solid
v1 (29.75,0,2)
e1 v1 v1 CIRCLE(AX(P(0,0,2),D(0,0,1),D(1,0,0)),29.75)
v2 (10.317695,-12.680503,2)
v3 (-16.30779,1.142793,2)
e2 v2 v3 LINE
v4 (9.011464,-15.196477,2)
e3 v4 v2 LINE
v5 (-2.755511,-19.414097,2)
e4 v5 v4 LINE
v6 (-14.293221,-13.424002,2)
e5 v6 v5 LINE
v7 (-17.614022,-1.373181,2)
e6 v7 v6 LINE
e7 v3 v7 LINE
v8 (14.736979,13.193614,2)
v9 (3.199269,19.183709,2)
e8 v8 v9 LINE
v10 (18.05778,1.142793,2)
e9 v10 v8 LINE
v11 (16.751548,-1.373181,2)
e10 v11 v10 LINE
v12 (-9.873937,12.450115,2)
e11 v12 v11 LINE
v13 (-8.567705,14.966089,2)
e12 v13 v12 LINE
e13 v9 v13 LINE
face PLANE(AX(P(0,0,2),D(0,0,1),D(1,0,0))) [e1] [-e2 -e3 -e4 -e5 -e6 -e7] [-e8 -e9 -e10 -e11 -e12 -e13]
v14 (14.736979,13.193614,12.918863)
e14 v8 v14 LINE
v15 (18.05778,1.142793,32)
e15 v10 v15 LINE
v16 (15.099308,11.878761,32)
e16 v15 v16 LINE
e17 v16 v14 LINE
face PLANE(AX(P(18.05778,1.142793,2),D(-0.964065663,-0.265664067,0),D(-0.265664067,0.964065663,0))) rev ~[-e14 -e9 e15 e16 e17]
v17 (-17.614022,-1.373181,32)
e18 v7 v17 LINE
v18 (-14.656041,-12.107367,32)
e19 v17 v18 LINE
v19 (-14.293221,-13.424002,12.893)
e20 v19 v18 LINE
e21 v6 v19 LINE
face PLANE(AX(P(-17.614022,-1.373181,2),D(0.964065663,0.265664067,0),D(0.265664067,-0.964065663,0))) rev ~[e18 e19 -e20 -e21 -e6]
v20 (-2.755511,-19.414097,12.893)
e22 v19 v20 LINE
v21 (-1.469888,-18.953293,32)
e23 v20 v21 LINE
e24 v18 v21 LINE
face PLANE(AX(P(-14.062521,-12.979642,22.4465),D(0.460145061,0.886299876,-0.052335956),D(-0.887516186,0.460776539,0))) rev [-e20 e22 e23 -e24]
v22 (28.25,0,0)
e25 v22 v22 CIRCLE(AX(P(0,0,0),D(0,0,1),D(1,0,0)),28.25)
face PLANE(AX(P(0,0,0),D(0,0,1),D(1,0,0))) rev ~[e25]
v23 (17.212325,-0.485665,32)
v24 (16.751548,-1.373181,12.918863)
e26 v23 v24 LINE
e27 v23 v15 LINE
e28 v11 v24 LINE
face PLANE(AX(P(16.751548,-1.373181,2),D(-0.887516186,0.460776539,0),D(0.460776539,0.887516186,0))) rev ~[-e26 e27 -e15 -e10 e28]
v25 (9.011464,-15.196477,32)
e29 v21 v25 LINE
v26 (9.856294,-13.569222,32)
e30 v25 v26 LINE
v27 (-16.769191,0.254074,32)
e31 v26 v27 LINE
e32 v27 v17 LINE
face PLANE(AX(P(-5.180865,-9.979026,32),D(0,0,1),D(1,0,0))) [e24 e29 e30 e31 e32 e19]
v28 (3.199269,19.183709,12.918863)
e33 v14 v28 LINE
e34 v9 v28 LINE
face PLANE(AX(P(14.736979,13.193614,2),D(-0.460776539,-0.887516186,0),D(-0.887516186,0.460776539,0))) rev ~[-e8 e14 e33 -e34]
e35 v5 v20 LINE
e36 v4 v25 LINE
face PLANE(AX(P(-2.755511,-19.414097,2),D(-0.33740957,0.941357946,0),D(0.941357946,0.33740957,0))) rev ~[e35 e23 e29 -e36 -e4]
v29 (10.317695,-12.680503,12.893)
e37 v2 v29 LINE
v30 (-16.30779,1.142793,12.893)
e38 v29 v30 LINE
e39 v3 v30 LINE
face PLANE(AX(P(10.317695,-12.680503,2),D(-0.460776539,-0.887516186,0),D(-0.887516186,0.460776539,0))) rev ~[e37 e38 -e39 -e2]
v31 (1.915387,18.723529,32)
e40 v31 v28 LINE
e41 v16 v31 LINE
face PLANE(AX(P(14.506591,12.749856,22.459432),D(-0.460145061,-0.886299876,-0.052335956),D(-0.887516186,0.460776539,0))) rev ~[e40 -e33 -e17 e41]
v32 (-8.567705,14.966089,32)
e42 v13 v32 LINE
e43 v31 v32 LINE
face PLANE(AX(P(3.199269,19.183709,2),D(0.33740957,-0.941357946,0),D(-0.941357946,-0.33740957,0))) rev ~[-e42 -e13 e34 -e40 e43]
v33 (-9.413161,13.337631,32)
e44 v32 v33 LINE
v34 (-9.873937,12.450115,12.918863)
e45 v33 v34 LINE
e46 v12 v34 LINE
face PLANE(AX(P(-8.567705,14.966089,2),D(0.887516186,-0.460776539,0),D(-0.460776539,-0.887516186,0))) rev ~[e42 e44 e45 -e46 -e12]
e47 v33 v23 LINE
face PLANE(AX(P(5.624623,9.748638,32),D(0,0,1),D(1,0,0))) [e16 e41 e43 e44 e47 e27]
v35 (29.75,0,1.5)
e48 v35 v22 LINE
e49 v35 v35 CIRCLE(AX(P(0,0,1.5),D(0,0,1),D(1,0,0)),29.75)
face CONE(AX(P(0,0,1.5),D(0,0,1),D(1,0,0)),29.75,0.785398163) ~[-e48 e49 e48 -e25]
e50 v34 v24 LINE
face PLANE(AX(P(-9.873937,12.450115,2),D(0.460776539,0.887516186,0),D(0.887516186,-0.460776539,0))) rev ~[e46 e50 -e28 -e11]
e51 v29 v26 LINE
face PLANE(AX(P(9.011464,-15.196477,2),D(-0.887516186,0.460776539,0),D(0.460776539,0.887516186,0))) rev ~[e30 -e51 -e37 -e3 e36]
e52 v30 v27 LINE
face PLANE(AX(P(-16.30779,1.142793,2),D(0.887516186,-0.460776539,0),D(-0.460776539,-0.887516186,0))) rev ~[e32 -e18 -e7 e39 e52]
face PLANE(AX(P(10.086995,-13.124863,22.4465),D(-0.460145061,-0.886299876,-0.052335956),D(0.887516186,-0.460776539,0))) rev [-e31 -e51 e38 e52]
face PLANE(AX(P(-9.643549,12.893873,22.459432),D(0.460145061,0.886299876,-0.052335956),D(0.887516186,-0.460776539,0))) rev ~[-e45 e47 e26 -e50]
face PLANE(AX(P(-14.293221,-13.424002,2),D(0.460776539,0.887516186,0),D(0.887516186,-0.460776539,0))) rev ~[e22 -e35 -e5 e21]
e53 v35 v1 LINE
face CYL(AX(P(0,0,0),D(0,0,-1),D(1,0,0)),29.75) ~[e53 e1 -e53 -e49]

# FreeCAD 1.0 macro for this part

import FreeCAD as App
import Part
import Sketcher

V = App.Vector


def edges_at(feature, points):
    """Names of the edges that pass closest to the given points."""
    edges = feature.Shape.Edges
    near = lambda p: min(range(len(edges)), key=lambda i: edges[i].distToShape(Part.Vertex(*p))[0])
    return sorted({f"Edge{near(p) + 1}" for p in points})


def add_polygon(sketch, points):
    """Adds a closed chain of lines whose ends are joined by coincident constraints."""
    first, n = sketch.GeometryCount, len(points)
    for a, b in zip(points, points[1:] + points[:1]):
        sketch.addGeometry(Part.LineSegment(App.Vector(*a, 0), App.Vector(*b, 0)), False)
    for i in range(n):
        sketch.addConstraint(Sketcher.Constraint("Coincident", first + i, 2, first + (i + 1) % n, 1))

doc = App.newDocument("Part")
params = doc.addObject("Spreadsheet::Sheet", "Params")
for row, (alias, value) in enumerate([
    ("sketch1_diameter", "59.5 mm"),
    ("pad1_length", "2 mm"),
    ("sketch2_length", "30 mm"),
    ("sketch2_length2", "13 mm"),
    ("sketch2_length3", "12.5 mm"),
    ("pad2_length", "30 mm"),
    ("chamfer_size", "1 mm"),
    ("chamfer_size2", "19.081137 mm"),
    ("chamfer2_size", "19.107 mm"),
    ("chamfer2_size2", "1.001355 mm"),
    ("chamfer3_size", "19.107 mm"),
    ("chamfer3_size2", "1.001355 mm"),
    ("chamfer4_size", "1.5 mm"),
], start=1):
    params.set(f"A{row}", alias)
    params.set(f"B{row}", "=" + value)
    params.setAlias(f"B{row}", alias)

body = doc.addObject("PartDesign::Body", "Body")

# Sketch on XY plane
sketch1 = body.newObject("Sketcher::SketchObject", "Sketch")
sketch1.AttachmentSupport = (doc.getObject("XY_Plane"), [""])
sketch1.MapMode = "FlatFace"
sketch1.addGeometry(Part.Circle(V(0, 0, 0), V(0, 0, 1), 30), False)
sketch1.addConstraint([
    Sketcher.Constraint("Coincident", 0, 3, -1, 1),
    Sketcher.Constraint("Diameter", 0, 59.5),
])
sketch1.setExpression("Constraints[1]", "Params.sketch1_diameter")
pad1 = body.newObject("PartDesign::Pad", "Pad")
pad1.Profile = sketch1
pad1.setExpression("Length", "Params.pad1_length")

# Sketch on XY plane
sketch2 = body.newObject("Sketcher::SketchObject", "Sketch001")
sketch2.AttachmentSupport = (doc.getObject("XY_Plane"), [""])
sketch2.MapMode = "FlatFace"
sketch2.AttachmentOffset = App.Placement(V(0, 0, 2), App.Rotation())
add_polygon(sketch2, [(10.3, -12.7), (-16.3, 1.1), (-17.6, -1.4), (-14.3, -13.4), (-2.8, -19.4), (9, -15.2)])  # lines 0-5
add_polygon(sketch2, [(-8.6, 15), (-9.9, 12.5), (16.8, -1.4), (18.1, 1.1), (14.7, 13.2), (3.2, 19.2)])  # lines 6-11
sketch2.addConstraint([
    Sketcher.Constraint("Perpendicular", 0, 1),
    Sketcher.Constraint("Perpendicular", 1, 3),
    Sketcher.Constraint("Perpendicular", 3, 5),
    Sketcher.Constraint("Parallel", 5, 6),
    Sketcher.Constraint("Perpendicular", 6, 7),
    Sketcher.Constraint("Perpendicular", 7, 8),
    Sketcher.Constraint("Parallel", 2, 9),
    Sketcher.Constraint("Perpendicular", 8, 10),
    Sketcher.Constraint("Parallel", 4, 11),
    Sketcher.Constraint("Horizontal", 1, 2, 7, 2),
    Sketcher.Constraint("Horizontal", 0, 2, 8, 2),
    Sketcher.Constraint("Equal", 2, 4),
    Sketcher.Constraint("Equal", 1, 5),
    Sketcher.Constraint("Equal", 5, 6),
    Sketcher.Constraint("Equal", 0, 7),
    Sketcher.Constraint("Equal", 4, 9),
    Sketcher.Constraint("Distance", 0, 30.0),
    Sketcher.Constraint("Distance", 3, 13.0),
    Sketcher.Constraint("Distance", 2, 12.5),
    Sketcher.Constraint("DistanceY", 2, 2, -1, 1, 13.424002),
    Sketcher.Constraint("DistanceX", 1, 2, 2, 2, 3.320801),
    Sketcher.Constraint("DistanceY", 2, 2, 5, 2, 0.743499),
    Sketcher.Constraint("DistanceX", 0, 2, -1, 1, 16.30779),
    Sketcher.Constraint("DistanceX", -1, 1, 7, 2, 16.751548),
])
sketch2.setExpression("Constraints[28]", "Params.sketch2_length")
sketch2.setExpression("Constraints[29]", "Params.sketch2_length2")
sketch2.setExpression("Constraints[30]", "Params.sketch2_length3")
pad2 = body.newObject("PartDesign::Pad", "Pad001")
pad2.Profile = sketch2
pad2.setExpression("Length", "Params.pad2_length")
doc.recompute()

chamfer = body.newObject("PartDesign::Chamfer", "Chamfer")
chamfer.Base = (pad2, edges_at(pad2, [(3.439, 5.538, 32), (8.968, 16.189, 32)]))
chamfer.ChamferType = "Two distances"
chamfer.setExpression("Size", "Params.chamfer_size")
chamfer.setExpression("Size2", "Params.chamfer_size2")
chamfer.FlipDirection = True
doc.recompute()

chamfer2 = body.newObject("PartDesign::Chamfer", "Chamfer001")
chamfer2.Base = (chamfer, edges_at(chamfer, [(-2.995, -5.769, 32)]))
chamfer2.ChamferType = "Two distances"
chamfer2.setExpression("Size", "Params.chamfer2_size")
chamfer2.setExpression("Size2", "Params.chamfer2_size2")
doc.recompute()

chamfer3 = body.newObject("PartDesign::Chamfer", "Chamfer002")
chamfer3.Base = (chamfer2, edges_at(chamfer2, [(-8.524, -16.419, 32)]))
chamfer3.ChamferType = "Two distances"
chamfer3.setExpression("Size", "Params.chamfer3_size")
chamfer3.setExpression("Size2", "Params.chamfer3_size2")
chamfer3.FlipDirection = True
doc.recompute()

chamfer4 = body.newObject("PartDesign::Chamfer", "Chamfer003")
chamfer4.Base = (chamfer3, edges_at(chamfer3, [(-29.75, 0, 0)]))
chamfer4.setExpression("Size", "Params.chamfer4_size")

doc.recompute()
